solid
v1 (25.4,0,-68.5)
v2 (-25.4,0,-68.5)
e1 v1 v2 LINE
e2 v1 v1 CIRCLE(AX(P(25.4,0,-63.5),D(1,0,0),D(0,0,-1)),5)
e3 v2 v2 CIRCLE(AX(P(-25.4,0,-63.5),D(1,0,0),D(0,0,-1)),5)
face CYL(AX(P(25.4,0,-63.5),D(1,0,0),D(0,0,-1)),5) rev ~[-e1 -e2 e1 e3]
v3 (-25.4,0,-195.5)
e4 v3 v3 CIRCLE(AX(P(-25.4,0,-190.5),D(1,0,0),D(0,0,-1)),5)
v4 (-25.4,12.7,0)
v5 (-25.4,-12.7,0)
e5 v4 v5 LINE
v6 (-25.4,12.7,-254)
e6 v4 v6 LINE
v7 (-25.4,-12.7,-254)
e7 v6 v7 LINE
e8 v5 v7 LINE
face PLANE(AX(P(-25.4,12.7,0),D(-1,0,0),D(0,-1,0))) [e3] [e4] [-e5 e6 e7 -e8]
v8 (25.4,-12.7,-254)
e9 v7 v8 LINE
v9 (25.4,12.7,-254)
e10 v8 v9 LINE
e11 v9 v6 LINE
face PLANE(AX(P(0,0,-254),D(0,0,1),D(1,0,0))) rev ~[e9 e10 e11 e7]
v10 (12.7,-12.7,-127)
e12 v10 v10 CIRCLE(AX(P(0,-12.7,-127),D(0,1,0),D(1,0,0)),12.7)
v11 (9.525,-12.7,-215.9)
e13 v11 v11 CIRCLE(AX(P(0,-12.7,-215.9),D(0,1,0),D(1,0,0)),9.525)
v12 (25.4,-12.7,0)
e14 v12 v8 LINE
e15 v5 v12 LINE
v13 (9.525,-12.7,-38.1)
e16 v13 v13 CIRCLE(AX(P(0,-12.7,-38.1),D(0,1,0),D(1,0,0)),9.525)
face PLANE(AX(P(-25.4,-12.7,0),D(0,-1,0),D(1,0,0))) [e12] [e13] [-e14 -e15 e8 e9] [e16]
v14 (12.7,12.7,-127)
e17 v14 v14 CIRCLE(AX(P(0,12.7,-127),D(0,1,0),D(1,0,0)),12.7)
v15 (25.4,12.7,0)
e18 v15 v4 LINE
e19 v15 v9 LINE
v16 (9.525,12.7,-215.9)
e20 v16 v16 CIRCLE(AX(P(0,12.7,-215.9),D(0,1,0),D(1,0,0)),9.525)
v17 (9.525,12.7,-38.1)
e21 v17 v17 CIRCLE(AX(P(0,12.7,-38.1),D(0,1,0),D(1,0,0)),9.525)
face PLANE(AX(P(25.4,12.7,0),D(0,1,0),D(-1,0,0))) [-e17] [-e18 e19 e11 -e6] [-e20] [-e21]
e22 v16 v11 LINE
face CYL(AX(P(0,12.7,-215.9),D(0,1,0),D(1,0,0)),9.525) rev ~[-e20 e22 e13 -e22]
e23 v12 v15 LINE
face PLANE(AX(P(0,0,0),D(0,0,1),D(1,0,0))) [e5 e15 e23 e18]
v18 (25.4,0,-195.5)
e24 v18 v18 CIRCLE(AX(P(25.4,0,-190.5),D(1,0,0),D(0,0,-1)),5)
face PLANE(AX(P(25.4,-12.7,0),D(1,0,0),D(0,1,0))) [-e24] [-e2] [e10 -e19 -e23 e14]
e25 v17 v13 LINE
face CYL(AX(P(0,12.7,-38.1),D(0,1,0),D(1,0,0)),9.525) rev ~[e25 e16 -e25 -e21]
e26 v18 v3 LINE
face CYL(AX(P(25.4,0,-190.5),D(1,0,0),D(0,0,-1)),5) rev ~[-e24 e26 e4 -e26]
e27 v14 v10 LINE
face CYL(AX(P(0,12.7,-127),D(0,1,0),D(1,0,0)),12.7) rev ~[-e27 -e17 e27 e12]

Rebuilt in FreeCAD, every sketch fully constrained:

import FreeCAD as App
import Part
import Sketcher
Q = App.Units.Quantity


def add_polygon(sketch, points):
    """Adds a closed chain of lines whose ends are joined by coincident constraints."""
    first, n = sketch.GeometryCount, len(points)
    for a, b in zip(points, points[1:] + points[:1]):
        sketch.addGeometry(Part.LineSegment(App.Vector(*a, 0), App.Vector(*b, 0)), False)
    for i in range(n):
        sketch.addConstraint(Sketcher.Constraint("Coincident", first + i, 2, first + (i + 1) % n, 1))

doc = App.newDocument("Part")
body = doc.addObject("PartDesign::Body", "Body")

# Sketch on XY plane
sketch1 = doc.addObject("Sketcher::SketchObject", "Sketch")
body.addObject(sketch1)
sketch1.AttachmentSupport = (doc.XY_Plane, [""])
sketch1.MapMode = "FlatFace"
add_polygon(sketch1, [(-25.4, 12.7), (-25.4, -12.7), (25.4, -12.7), (25.4, 12.7)])  # lines 0-3
sketch1.addConstraint(Sketcher.Constraint("Vertical", 0))
sketch1.addConstraint(Sketcher.Constraint("Horizontal", 1))
sketch1.addConstraint(Sketcher.Constraint("Vertical", 2))
sketch1.addConstraint(Sketcher.Constraint("Horizontal", 3))
sketch1.addConstraint(Sketcher.Constraint("Symmetric", 0, 2, 2, 2, -1, 1))
sketch1.addConstraint(Sketcher.Constraint("DistanceX", 1, 1, 1, 2, Q("2 in")))
sketch1.addConstraint(Sketcher.Constraint("DistanceY", 0, 2, 0, 1, Q("1 in")))
pad1 = doc.addObject("PartDesign::Pad", "Pad")
body.addObject(pad1)
pad1.Profile = sketch1
pad1.Length = Q("10 in")
pad1.Reversed = True

# Sketch on XZ plane
sketch2 = doc.addObject("Sketcher::SketchObject", "Sketch001")
body.addObject(sketch2)
sketch2.AttachmentSupport = (doc.XZ_Plane, [""])
sketch2.MapMode = "FlatFace"
sketch2.AttachmentOffset = App.Placement(App.Vector(0, 0, -0.5 * 25.4), App.Rotation())
sketch2.addGeometry(Part.Circle(App.Vector(0, -38.1, 0), App.Vector(0, 0, 1), 9.525), False)
sketch2.addGeometry(Part.Circle(App.Vector(0, -215.9, 0), App.Vector(0, 0, 1), 9.525), False)
sketch2.addGeometry(Part.Circle(App.Vector(0, -127, 0), App.Vector(0, 0, 1), 12.7), False)
sketch2.addConstraint(Sketcher.Constraint("Equal", 0, 1))
sketch2.addConstraint(Sketcher.Constraint("PointOnObject", 0, 3, -2))
sketch2.addConstraint(Sketcher.Constraint("PointOnObject", 1, 3, -2))
sketch2.addConstraint(Sketcher.Constraint("PointOnObject", 2, 3, -2))
sketch2.addConstraint(Sketcher.Constraint("Diameter", 2, Q("1 in")))
sketch2.addConstraint(Sketcher.Constraint("Diameter", 0, Q("0.75 in")))
sketch2.addConstraint(Sketcher.Constraint("DistanceY", 1, 3, 0, 3, Q("7 in")))
sketch2.addConstraint(Sketcher.Constraint("DistanceY", 2, 3, 0, 3, Q("3.5 in")))
sketch2.addConstraint(Sketcher.Constraint("DistanceY", 2, 3, -1, 1, Q("5 in")))
pocket1 = doc.addObject("PartDesign::Pocket", "Pocket")
body.addObject(pocket1)
pocket1.Profile = sketch2
pocket1.Length = Q("10 in")
pocket1.Reversed = True

# Sketch on YZ plane
sketch3 = doc.addObject("Sketcher::SketchObject", "Sketch002")
body.addObject(sketch3)
sketch3.AttachmentSupport = (doc.YZ_Plane, [""])
sketch3.MapMode = "FlatFace"
sketch3.AttachmentOffset = App.Placement(App.Vector(0, 0, 1 * 25.4), App.Rotation())
sketch3.addGeometry(Part.Circle(App.Vector(0, -63.5, 0), App.Vector(0, 0, 1), 5), False)
sketch3.addGeometry(Part.Circle(App.Vector(0, -190.5, 0), App.Vector(0, 0, 1), 5), False)
sketch3.addConstraint(Sketcher.Constraint("Equal", 0, 1))
sketch3.addConstraint(Sketcher.Constraint("PointOnObject", 0, 3, -2))
sketch3.addConstraint(Sketcher.Constraint("PointOnObject", 1, 3, -2))
sketch3.addConstraint(Sketcher.Constraint("DistanceY", 1, 3, 0, 3, Q("5 in")))
sketch3.addConstraint(Sketcher.Constraint("Diameter", 0, Q("0.3937 in")))
sketch3.addConstraint(Sketcher.Constraint("DistanceY", 0, 3, -1, 1, Q("2.5 in")))
pocket2 = doc.addObject("PartDesign::Pocket", "Pocket001")
body.addObject(pocket2)
pocket2.Profile = sketch3
pocket2.Length = Q("10 in")

doc.recompute()
